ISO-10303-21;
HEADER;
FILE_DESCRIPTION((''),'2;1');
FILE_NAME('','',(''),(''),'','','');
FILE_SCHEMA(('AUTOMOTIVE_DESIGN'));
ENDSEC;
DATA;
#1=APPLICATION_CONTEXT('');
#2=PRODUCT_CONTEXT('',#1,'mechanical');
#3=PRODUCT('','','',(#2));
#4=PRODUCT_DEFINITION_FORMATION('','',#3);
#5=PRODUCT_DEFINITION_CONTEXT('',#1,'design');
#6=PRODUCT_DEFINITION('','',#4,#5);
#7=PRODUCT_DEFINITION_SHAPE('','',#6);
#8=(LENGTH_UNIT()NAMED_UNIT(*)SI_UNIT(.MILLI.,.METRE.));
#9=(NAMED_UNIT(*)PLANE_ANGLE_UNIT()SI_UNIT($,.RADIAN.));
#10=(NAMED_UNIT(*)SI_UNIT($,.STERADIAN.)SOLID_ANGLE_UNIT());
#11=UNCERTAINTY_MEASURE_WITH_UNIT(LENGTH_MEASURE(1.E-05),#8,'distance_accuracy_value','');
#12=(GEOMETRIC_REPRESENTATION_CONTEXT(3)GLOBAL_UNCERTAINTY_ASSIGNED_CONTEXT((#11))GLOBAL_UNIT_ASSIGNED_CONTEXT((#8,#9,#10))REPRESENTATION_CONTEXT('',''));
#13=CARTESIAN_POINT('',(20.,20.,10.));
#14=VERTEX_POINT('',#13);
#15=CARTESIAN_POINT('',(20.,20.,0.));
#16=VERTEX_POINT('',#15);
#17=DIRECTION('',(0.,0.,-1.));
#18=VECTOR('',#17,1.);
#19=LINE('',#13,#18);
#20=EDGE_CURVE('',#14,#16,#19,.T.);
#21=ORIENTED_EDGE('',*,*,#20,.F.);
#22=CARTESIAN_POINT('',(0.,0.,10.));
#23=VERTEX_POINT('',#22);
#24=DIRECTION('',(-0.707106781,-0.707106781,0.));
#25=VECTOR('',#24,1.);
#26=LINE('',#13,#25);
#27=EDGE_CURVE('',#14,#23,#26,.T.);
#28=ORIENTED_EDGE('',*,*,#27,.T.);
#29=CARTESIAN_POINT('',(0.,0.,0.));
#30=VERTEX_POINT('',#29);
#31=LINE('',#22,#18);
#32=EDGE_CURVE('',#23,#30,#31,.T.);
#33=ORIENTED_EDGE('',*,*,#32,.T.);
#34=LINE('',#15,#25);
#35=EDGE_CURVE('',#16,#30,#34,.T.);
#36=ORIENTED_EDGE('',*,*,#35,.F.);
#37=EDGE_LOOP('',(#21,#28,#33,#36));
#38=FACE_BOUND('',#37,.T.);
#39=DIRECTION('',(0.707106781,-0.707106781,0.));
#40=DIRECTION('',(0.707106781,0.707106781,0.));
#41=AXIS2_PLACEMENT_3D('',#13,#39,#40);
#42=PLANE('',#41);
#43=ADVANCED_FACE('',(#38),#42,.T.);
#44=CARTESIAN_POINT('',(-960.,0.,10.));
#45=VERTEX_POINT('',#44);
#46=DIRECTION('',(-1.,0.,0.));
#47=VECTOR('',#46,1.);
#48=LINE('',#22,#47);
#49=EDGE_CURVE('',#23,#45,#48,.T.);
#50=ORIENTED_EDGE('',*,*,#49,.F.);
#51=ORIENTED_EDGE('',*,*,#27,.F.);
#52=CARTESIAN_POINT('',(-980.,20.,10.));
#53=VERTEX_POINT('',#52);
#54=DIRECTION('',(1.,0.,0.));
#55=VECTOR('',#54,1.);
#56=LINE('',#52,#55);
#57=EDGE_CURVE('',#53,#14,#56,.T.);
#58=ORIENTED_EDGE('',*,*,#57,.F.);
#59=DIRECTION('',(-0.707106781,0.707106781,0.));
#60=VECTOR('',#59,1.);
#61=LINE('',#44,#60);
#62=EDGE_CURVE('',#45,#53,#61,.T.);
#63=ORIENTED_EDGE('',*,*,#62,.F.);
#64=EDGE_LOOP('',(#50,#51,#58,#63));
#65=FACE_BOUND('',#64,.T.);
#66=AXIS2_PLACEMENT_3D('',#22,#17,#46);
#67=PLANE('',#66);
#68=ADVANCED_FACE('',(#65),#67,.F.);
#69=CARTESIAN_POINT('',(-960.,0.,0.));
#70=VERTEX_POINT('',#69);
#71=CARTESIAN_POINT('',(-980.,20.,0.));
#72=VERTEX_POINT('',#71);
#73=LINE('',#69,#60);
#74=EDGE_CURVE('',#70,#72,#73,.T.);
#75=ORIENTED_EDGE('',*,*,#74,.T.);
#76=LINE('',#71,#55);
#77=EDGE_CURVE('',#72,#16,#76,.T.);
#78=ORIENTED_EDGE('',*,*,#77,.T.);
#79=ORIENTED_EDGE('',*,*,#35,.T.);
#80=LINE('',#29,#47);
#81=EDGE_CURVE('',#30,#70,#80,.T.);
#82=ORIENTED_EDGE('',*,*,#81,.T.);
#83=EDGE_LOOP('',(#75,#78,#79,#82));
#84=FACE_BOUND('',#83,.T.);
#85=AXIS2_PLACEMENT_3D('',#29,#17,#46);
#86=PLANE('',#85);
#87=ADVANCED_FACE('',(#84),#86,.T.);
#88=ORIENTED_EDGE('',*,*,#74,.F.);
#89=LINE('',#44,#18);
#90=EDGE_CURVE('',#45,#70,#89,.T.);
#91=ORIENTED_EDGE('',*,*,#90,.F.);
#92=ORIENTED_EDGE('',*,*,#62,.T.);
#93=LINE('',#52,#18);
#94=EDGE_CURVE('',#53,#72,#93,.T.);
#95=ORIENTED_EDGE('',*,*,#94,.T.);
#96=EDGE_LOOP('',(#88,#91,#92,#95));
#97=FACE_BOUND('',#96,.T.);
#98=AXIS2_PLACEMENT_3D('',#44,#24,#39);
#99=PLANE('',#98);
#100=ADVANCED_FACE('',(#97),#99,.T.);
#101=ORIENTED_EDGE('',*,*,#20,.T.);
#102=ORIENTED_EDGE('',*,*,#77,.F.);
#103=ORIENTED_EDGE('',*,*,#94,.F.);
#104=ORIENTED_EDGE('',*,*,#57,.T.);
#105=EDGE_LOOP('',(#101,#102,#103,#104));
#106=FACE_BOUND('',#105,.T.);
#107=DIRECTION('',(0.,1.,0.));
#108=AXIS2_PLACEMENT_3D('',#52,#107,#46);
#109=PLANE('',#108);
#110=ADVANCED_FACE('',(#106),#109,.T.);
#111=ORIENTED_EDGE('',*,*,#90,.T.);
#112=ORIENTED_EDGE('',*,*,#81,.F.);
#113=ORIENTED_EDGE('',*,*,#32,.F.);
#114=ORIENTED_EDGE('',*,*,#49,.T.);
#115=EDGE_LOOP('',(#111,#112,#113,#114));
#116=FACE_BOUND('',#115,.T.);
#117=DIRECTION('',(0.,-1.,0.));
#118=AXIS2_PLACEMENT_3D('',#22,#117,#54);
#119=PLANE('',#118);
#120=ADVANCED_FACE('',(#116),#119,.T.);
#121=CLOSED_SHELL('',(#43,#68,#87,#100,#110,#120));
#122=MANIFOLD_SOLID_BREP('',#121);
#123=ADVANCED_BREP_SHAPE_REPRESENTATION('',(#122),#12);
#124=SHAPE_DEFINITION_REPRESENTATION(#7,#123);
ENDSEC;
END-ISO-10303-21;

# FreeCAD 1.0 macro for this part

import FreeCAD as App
import Part
import Sketcher
Q = App.Units.Quantity

doc = App.newDocument("Part")
body = doc.addObject("PartDesign::Body", "Body")

# Sketch on XY plane
sketch1 = body.newObject("Sketcher::SketchObject", "Sketch")
sketch1.AttachmentSupport = (doc.getObject("XY_Plane"), [""])
sketch1.MapMode = "FlatFace"
sketch1.addGeometry([
    Part.LineSegment(App.Vector(-960, 0, 0), App.Vector(0, 0, 0)),
    Part.LineSegment(App.Vector(0, 0, 0), App.Vector(20, 20, 0)),
    Part.LineSegment(App.Vector(20, 20, 0), App.Vector(-980, 20, 0)),
    Part.LineSegment(App.Vector(-980, 20, 0), App.Vector(-960, 0, 0)),
], False)
sketch1.addConstraint([
    Sketcher.Constraint("Coincident", 0, 2, 1, 1),
    Sketcher.Constraint("Coincident", 1, 2, 2, 1),
    Sketcher.Constraint("Coincident", 2, 2, 3, 1),
    Sketcher.Constraint("Coincident", 3, 2, 0, 1),
    Sketcher.Constraint("Horizontal", 0),
    Sketcher.Constraint("Horizontal", 2),
    Sketcher.Constraint("Coincident", 0, 2, -1, 1),
    Sketcher.Constraint("Perpendicular", 1, 3),
    Sketcher.Constraint("Equal", 1, 3),
    Sketcher.Constraint("DistanceX", 0, 1, 0, 2, Q("960 mm")),
    Sketcher.Constraint("DistanceX", 2, 2, 2, 1, Q("1000 mm")),
])
pad1 = body.newObject("PartDesign::Pad", "Pad")
pad1.Profile = sketch1
pad1.Length = 10

doc.recompute()
